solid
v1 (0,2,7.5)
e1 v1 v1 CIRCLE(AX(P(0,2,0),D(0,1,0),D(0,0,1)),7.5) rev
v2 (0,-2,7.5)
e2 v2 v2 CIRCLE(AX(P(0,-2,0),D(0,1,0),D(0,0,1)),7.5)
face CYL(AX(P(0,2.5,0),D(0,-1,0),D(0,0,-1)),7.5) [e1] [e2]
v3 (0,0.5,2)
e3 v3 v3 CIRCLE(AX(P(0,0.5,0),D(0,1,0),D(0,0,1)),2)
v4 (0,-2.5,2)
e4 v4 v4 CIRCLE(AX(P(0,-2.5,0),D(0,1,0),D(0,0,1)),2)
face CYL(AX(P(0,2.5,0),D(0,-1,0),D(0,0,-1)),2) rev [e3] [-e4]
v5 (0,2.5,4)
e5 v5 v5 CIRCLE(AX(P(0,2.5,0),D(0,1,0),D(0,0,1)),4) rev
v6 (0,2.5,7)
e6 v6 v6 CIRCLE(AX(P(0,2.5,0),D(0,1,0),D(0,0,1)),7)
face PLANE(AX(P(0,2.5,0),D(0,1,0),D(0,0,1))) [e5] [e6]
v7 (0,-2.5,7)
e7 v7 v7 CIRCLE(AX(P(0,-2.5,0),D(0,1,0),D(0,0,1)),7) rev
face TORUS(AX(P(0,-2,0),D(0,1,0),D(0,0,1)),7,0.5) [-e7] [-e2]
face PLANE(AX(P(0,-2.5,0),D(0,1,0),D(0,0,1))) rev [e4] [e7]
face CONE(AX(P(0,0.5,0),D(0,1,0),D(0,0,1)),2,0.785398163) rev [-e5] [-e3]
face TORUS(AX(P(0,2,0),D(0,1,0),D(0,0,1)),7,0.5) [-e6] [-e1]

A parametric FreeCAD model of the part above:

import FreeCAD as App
import Part
import Sketcher
from FreeCAD import Vector
Q = App.Units.Quantity


def edges_at(feature, points):
    """Names of the edges that pass closest to the given points."""
    edges = feature.Shape.Edges
    near = lambda p: min(range(len(edges)), key=lambda i: edges[i].distToShape(Part.Vertex(*p))[0])
    return sorted({f"Edge{near(p) + 1}" for p in points})

doc = App.newDocument("Part")
body = doc.addObject("PartDesign::Body", "Body")

# Sketch on XZ plane
sketch1 = doc.addObject("Sketcher::SketchObject", "Sketch")
body.addObject(sketch1)
sketch1.AttachmentSupport = (doc.XZ_Plane, [""])
sketch1.MapMode = "FlatFace"
sketch1.addGeometry([
    Part.Circle(Vector(0, 0, 0), Vector(0, 0, 1), 7.5),
    Part.Circle(Vector(0, 0, 0), Vector(0, 0, 1), 2),
], False)
sketch1.addConstraint([
    Sketcher.Constraint("Coincident", 0, 3, -1, 1),
    Sketcher.Constraint("Coincident", 1, 3, -1, 1),
    Sketcher.Constraint("Diameter", 0, Q("15 mm")),
    Sketcher.Constraint("Diameter", 1, Q("4 mm")),
])
pad1 = doc.addObject("PartDesign::Pad", "Pad")
body.addObject(pad1)
pad1.Profile = sketch1
pad1.Length = 5
pad1.Midplane = True
doc.recompute()

fillet = doc.addObject("PartDesign::Fillet", "Fillet")
body.addObject(fillet)
fillet.Base = (pad1, edges_at(pad1, [(-7.5, -2.5, 0), (-7.5, 2.5, 0)]))
fillet.Radius = 0.5
doc.recompute()

chamfer = doc.addObject("PartDesign::Chamfer", "Chamfer")
body.addObject(chamfer)
chamfer.Base = (fillet, edges_at(fillet, [(-2, 2.5, 0)]))
chamfer.Size = 2

doc.recompute()
